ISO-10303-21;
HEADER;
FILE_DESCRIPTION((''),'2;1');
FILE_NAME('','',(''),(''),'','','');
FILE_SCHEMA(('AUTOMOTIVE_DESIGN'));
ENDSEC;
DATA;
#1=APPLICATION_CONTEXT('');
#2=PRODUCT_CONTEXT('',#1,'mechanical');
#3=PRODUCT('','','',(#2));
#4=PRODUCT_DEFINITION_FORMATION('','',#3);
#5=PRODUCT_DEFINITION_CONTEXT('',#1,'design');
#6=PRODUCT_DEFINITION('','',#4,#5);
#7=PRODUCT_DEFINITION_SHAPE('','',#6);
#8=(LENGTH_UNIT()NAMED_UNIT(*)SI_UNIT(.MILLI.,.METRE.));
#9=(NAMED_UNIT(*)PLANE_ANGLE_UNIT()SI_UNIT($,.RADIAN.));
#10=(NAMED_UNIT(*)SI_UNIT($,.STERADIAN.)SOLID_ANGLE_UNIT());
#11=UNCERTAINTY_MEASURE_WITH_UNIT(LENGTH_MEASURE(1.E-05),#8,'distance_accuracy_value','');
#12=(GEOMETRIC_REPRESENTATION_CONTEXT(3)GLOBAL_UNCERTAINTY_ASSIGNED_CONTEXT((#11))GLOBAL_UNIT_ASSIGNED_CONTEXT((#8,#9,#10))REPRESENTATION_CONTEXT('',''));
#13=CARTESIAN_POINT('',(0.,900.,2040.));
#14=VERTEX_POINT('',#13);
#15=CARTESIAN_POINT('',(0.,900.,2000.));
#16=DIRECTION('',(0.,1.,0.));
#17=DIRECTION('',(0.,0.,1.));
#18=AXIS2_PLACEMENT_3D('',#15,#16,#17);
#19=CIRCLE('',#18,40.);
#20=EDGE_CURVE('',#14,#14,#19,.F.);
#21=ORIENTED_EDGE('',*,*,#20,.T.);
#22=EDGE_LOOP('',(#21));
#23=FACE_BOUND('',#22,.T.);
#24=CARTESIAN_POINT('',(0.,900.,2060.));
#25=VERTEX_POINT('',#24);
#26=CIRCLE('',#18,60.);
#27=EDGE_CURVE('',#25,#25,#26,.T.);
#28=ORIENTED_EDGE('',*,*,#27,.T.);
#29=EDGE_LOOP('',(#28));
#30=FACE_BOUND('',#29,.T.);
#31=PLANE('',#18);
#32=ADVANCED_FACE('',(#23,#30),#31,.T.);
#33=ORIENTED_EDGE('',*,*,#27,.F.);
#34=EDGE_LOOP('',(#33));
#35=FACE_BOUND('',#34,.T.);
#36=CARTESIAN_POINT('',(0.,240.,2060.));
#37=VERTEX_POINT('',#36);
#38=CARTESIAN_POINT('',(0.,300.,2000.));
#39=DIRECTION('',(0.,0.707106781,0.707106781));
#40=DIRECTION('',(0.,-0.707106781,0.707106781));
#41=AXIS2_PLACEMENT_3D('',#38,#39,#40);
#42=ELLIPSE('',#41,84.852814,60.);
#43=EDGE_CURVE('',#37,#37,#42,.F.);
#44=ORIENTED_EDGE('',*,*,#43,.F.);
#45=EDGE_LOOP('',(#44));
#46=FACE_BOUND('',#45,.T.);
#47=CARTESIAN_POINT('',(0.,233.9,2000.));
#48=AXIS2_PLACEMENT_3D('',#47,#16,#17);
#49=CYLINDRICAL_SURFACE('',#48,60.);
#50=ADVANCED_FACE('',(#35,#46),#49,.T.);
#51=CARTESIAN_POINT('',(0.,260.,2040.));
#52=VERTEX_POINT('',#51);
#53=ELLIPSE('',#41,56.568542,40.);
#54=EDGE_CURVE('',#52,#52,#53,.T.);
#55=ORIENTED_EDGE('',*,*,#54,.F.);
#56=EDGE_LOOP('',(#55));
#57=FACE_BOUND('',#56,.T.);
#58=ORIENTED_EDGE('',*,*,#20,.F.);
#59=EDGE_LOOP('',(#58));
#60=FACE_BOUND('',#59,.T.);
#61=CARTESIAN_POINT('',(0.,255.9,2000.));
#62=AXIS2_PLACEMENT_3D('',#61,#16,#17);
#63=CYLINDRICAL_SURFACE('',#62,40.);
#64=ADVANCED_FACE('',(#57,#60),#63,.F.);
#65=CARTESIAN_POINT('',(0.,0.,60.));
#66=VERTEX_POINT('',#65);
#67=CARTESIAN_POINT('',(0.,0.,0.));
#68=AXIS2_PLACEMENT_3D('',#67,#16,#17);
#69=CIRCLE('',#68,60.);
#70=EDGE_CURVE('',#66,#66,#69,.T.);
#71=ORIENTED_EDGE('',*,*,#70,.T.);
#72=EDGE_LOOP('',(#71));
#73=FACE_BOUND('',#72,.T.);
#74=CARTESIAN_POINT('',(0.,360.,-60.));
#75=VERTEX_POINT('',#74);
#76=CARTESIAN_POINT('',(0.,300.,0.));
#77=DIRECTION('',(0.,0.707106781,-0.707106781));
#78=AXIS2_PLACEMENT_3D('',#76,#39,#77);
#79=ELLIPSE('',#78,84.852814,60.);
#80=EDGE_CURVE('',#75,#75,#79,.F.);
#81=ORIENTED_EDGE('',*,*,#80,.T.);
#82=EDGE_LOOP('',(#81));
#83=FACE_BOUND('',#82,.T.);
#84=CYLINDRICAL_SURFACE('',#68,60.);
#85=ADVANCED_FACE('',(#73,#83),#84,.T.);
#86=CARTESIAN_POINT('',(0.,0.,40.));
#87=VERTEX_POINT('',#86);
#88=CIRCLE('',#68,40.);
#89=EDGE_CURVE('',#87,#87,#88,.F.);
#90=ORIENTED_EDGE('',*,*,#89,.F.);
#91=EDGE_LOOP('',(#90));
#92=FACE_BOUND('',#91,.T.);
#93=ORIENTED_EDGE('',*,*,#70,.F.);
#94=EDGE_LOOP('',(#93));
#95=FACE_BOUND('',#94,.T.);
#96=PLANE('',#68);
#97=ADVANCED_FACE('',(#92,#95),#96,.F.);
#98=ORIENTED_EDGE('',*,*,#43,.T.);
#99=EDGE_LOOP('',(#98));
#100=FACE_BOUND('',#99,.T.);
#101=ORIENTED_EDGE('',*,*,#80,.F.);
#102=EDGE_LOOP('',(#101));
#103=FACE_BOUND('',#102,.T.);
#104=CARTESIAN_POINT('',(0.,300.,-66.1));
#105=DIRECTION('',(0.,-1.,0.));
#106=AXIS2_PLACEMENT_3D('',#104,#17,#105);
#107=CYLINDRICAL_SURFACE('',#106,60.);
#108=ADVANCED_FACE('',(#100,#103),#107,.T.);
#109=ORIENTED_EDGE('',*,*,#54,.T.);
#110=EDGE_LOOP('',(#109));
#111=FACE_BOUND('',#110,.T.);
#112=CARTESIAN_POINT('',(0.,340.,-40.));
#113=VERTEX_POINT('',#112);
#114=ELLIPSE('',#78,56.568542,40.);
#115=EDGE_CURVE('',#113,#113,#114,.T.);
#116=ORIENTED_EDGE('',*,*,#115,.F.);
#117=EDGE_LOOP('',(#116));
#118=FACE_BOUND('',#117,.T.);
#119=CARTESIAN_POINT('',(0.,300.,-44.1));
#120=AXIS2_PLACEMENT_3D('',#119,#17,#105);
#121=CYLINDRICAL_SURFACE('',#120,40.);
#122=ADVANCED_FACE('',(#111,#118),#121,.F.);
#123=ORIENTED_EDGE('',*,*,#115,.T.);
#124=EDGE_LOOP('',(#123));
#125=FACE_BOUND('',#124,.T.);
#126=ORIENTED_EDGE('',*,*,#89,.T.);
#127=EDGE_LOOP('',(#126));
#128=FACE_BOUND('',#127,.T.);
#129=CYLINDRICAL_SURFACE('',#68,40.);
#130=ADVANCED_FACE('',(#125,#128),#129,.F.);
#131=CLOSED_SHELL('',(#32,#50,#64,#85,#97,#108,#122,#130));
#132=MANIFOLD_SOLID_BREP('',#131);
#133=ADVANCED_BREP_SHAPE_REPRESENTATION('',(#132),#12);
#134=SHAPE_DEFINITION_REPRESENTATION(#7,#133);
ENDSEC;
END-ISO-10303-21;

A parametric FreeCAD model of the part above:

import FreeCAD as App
import Part
import Sketcher
from FreeCAD import Vector
Q = App.Units.Quantity

doc = App.newDocument("Part")
body = doc.addObject("PartDesign::Body", "Body")

# Sketch on XZ plane
sketch1 = body.newObject("Sketcher::SketchObject", "Sketch")
sketch1.AttachmentSupport = (doc.getObject("XZ_Plane"), [""])
sketch1.MapMode = "FlatFace"
sketch1.addGeometry(Part.Circle(Vector(0, 0, 0), Vector(0, 0, 1), 60), False)
sketch1.addGeometry(Part.Circle(Vector(0, 0, 0), Vector(0, 0, 1), 40), False)
sketch1.addConstraint(Sketcher.Constraint("Coincident", 0, 3, -1, 1))
sketch1.addConstraint(Sketcher.Constraint("Coincident", 1, 3, -1, 1))
sketch1.addConstraint(Sketcher.Constraint("Diameter", 0, Q("120 mm")))
sketch1.addConstraint(Sketcher.Constraint("Diameter", 1, Q("80 mm")))

# Sketch on YZ plane
sketch2 = body.newObject("Sketcher::SketchObject", "Sketch001")
sketch2.AttachmentSupport = (doc.getObject("YZ_Plane"), [""])
sketch2.MapMode = "FlatFace"
sketch2.addGeometry(Part.LineSegment(Vector(0, 0, 0), Vector(300, 0, 0)), False)
sketch2.addGeometry(Part.LineSegment(Vector(300, 0, 0), Vector(300, 2000, 0)), False)
sketch2.addGeometry(Part.LineSegment(Vector(300, 2000, 0), Vector(900, 2000, 0)), False)
sketch2.addConstraint(Sketcher.Constraint("Coincident", 0, 2, 1, 1))
sketch2.addConstraint(Sketcher.Constraint("Coincident", 1, 2, 2, 1))
sketch2.addConstraint(Sketcher.Constraint("Horizontal", 0))
sketch2.addConstraint(Sketcher.Constraint("Vertical", 1))
sketch2.addConstraint(Sketcher.Constraint("Horizontal", 2))
sketch2.addConstraint(Sketcher.Constraint("Coincident", 0, 1, -1, 1))
sketch2.addConstraint(Sketcher.Constraint("DistanceX", 0, 1, 0, 2, Q("300 mm")))
sketch2.addConstraint(Sketcher.Constraint("DistanceX", 2, 1, 2, 2, Q("600 mm")))
sketch2.addConstraint(Sketcher.Constraint("DistanceY", 1, 1, 1, 2, Q("2000 mm")))
doc.recompute()

additivepipe = body.newObject("PartDesign::AdditivePipe", "AdditivePipe")
additivepipe.Profile = sketch1
additivepipe.Spine = (sketch2, ["Edge1", "Edge2", "Edge3"])
additivepipe.Transition = "Right corner"

doc.recompute()
